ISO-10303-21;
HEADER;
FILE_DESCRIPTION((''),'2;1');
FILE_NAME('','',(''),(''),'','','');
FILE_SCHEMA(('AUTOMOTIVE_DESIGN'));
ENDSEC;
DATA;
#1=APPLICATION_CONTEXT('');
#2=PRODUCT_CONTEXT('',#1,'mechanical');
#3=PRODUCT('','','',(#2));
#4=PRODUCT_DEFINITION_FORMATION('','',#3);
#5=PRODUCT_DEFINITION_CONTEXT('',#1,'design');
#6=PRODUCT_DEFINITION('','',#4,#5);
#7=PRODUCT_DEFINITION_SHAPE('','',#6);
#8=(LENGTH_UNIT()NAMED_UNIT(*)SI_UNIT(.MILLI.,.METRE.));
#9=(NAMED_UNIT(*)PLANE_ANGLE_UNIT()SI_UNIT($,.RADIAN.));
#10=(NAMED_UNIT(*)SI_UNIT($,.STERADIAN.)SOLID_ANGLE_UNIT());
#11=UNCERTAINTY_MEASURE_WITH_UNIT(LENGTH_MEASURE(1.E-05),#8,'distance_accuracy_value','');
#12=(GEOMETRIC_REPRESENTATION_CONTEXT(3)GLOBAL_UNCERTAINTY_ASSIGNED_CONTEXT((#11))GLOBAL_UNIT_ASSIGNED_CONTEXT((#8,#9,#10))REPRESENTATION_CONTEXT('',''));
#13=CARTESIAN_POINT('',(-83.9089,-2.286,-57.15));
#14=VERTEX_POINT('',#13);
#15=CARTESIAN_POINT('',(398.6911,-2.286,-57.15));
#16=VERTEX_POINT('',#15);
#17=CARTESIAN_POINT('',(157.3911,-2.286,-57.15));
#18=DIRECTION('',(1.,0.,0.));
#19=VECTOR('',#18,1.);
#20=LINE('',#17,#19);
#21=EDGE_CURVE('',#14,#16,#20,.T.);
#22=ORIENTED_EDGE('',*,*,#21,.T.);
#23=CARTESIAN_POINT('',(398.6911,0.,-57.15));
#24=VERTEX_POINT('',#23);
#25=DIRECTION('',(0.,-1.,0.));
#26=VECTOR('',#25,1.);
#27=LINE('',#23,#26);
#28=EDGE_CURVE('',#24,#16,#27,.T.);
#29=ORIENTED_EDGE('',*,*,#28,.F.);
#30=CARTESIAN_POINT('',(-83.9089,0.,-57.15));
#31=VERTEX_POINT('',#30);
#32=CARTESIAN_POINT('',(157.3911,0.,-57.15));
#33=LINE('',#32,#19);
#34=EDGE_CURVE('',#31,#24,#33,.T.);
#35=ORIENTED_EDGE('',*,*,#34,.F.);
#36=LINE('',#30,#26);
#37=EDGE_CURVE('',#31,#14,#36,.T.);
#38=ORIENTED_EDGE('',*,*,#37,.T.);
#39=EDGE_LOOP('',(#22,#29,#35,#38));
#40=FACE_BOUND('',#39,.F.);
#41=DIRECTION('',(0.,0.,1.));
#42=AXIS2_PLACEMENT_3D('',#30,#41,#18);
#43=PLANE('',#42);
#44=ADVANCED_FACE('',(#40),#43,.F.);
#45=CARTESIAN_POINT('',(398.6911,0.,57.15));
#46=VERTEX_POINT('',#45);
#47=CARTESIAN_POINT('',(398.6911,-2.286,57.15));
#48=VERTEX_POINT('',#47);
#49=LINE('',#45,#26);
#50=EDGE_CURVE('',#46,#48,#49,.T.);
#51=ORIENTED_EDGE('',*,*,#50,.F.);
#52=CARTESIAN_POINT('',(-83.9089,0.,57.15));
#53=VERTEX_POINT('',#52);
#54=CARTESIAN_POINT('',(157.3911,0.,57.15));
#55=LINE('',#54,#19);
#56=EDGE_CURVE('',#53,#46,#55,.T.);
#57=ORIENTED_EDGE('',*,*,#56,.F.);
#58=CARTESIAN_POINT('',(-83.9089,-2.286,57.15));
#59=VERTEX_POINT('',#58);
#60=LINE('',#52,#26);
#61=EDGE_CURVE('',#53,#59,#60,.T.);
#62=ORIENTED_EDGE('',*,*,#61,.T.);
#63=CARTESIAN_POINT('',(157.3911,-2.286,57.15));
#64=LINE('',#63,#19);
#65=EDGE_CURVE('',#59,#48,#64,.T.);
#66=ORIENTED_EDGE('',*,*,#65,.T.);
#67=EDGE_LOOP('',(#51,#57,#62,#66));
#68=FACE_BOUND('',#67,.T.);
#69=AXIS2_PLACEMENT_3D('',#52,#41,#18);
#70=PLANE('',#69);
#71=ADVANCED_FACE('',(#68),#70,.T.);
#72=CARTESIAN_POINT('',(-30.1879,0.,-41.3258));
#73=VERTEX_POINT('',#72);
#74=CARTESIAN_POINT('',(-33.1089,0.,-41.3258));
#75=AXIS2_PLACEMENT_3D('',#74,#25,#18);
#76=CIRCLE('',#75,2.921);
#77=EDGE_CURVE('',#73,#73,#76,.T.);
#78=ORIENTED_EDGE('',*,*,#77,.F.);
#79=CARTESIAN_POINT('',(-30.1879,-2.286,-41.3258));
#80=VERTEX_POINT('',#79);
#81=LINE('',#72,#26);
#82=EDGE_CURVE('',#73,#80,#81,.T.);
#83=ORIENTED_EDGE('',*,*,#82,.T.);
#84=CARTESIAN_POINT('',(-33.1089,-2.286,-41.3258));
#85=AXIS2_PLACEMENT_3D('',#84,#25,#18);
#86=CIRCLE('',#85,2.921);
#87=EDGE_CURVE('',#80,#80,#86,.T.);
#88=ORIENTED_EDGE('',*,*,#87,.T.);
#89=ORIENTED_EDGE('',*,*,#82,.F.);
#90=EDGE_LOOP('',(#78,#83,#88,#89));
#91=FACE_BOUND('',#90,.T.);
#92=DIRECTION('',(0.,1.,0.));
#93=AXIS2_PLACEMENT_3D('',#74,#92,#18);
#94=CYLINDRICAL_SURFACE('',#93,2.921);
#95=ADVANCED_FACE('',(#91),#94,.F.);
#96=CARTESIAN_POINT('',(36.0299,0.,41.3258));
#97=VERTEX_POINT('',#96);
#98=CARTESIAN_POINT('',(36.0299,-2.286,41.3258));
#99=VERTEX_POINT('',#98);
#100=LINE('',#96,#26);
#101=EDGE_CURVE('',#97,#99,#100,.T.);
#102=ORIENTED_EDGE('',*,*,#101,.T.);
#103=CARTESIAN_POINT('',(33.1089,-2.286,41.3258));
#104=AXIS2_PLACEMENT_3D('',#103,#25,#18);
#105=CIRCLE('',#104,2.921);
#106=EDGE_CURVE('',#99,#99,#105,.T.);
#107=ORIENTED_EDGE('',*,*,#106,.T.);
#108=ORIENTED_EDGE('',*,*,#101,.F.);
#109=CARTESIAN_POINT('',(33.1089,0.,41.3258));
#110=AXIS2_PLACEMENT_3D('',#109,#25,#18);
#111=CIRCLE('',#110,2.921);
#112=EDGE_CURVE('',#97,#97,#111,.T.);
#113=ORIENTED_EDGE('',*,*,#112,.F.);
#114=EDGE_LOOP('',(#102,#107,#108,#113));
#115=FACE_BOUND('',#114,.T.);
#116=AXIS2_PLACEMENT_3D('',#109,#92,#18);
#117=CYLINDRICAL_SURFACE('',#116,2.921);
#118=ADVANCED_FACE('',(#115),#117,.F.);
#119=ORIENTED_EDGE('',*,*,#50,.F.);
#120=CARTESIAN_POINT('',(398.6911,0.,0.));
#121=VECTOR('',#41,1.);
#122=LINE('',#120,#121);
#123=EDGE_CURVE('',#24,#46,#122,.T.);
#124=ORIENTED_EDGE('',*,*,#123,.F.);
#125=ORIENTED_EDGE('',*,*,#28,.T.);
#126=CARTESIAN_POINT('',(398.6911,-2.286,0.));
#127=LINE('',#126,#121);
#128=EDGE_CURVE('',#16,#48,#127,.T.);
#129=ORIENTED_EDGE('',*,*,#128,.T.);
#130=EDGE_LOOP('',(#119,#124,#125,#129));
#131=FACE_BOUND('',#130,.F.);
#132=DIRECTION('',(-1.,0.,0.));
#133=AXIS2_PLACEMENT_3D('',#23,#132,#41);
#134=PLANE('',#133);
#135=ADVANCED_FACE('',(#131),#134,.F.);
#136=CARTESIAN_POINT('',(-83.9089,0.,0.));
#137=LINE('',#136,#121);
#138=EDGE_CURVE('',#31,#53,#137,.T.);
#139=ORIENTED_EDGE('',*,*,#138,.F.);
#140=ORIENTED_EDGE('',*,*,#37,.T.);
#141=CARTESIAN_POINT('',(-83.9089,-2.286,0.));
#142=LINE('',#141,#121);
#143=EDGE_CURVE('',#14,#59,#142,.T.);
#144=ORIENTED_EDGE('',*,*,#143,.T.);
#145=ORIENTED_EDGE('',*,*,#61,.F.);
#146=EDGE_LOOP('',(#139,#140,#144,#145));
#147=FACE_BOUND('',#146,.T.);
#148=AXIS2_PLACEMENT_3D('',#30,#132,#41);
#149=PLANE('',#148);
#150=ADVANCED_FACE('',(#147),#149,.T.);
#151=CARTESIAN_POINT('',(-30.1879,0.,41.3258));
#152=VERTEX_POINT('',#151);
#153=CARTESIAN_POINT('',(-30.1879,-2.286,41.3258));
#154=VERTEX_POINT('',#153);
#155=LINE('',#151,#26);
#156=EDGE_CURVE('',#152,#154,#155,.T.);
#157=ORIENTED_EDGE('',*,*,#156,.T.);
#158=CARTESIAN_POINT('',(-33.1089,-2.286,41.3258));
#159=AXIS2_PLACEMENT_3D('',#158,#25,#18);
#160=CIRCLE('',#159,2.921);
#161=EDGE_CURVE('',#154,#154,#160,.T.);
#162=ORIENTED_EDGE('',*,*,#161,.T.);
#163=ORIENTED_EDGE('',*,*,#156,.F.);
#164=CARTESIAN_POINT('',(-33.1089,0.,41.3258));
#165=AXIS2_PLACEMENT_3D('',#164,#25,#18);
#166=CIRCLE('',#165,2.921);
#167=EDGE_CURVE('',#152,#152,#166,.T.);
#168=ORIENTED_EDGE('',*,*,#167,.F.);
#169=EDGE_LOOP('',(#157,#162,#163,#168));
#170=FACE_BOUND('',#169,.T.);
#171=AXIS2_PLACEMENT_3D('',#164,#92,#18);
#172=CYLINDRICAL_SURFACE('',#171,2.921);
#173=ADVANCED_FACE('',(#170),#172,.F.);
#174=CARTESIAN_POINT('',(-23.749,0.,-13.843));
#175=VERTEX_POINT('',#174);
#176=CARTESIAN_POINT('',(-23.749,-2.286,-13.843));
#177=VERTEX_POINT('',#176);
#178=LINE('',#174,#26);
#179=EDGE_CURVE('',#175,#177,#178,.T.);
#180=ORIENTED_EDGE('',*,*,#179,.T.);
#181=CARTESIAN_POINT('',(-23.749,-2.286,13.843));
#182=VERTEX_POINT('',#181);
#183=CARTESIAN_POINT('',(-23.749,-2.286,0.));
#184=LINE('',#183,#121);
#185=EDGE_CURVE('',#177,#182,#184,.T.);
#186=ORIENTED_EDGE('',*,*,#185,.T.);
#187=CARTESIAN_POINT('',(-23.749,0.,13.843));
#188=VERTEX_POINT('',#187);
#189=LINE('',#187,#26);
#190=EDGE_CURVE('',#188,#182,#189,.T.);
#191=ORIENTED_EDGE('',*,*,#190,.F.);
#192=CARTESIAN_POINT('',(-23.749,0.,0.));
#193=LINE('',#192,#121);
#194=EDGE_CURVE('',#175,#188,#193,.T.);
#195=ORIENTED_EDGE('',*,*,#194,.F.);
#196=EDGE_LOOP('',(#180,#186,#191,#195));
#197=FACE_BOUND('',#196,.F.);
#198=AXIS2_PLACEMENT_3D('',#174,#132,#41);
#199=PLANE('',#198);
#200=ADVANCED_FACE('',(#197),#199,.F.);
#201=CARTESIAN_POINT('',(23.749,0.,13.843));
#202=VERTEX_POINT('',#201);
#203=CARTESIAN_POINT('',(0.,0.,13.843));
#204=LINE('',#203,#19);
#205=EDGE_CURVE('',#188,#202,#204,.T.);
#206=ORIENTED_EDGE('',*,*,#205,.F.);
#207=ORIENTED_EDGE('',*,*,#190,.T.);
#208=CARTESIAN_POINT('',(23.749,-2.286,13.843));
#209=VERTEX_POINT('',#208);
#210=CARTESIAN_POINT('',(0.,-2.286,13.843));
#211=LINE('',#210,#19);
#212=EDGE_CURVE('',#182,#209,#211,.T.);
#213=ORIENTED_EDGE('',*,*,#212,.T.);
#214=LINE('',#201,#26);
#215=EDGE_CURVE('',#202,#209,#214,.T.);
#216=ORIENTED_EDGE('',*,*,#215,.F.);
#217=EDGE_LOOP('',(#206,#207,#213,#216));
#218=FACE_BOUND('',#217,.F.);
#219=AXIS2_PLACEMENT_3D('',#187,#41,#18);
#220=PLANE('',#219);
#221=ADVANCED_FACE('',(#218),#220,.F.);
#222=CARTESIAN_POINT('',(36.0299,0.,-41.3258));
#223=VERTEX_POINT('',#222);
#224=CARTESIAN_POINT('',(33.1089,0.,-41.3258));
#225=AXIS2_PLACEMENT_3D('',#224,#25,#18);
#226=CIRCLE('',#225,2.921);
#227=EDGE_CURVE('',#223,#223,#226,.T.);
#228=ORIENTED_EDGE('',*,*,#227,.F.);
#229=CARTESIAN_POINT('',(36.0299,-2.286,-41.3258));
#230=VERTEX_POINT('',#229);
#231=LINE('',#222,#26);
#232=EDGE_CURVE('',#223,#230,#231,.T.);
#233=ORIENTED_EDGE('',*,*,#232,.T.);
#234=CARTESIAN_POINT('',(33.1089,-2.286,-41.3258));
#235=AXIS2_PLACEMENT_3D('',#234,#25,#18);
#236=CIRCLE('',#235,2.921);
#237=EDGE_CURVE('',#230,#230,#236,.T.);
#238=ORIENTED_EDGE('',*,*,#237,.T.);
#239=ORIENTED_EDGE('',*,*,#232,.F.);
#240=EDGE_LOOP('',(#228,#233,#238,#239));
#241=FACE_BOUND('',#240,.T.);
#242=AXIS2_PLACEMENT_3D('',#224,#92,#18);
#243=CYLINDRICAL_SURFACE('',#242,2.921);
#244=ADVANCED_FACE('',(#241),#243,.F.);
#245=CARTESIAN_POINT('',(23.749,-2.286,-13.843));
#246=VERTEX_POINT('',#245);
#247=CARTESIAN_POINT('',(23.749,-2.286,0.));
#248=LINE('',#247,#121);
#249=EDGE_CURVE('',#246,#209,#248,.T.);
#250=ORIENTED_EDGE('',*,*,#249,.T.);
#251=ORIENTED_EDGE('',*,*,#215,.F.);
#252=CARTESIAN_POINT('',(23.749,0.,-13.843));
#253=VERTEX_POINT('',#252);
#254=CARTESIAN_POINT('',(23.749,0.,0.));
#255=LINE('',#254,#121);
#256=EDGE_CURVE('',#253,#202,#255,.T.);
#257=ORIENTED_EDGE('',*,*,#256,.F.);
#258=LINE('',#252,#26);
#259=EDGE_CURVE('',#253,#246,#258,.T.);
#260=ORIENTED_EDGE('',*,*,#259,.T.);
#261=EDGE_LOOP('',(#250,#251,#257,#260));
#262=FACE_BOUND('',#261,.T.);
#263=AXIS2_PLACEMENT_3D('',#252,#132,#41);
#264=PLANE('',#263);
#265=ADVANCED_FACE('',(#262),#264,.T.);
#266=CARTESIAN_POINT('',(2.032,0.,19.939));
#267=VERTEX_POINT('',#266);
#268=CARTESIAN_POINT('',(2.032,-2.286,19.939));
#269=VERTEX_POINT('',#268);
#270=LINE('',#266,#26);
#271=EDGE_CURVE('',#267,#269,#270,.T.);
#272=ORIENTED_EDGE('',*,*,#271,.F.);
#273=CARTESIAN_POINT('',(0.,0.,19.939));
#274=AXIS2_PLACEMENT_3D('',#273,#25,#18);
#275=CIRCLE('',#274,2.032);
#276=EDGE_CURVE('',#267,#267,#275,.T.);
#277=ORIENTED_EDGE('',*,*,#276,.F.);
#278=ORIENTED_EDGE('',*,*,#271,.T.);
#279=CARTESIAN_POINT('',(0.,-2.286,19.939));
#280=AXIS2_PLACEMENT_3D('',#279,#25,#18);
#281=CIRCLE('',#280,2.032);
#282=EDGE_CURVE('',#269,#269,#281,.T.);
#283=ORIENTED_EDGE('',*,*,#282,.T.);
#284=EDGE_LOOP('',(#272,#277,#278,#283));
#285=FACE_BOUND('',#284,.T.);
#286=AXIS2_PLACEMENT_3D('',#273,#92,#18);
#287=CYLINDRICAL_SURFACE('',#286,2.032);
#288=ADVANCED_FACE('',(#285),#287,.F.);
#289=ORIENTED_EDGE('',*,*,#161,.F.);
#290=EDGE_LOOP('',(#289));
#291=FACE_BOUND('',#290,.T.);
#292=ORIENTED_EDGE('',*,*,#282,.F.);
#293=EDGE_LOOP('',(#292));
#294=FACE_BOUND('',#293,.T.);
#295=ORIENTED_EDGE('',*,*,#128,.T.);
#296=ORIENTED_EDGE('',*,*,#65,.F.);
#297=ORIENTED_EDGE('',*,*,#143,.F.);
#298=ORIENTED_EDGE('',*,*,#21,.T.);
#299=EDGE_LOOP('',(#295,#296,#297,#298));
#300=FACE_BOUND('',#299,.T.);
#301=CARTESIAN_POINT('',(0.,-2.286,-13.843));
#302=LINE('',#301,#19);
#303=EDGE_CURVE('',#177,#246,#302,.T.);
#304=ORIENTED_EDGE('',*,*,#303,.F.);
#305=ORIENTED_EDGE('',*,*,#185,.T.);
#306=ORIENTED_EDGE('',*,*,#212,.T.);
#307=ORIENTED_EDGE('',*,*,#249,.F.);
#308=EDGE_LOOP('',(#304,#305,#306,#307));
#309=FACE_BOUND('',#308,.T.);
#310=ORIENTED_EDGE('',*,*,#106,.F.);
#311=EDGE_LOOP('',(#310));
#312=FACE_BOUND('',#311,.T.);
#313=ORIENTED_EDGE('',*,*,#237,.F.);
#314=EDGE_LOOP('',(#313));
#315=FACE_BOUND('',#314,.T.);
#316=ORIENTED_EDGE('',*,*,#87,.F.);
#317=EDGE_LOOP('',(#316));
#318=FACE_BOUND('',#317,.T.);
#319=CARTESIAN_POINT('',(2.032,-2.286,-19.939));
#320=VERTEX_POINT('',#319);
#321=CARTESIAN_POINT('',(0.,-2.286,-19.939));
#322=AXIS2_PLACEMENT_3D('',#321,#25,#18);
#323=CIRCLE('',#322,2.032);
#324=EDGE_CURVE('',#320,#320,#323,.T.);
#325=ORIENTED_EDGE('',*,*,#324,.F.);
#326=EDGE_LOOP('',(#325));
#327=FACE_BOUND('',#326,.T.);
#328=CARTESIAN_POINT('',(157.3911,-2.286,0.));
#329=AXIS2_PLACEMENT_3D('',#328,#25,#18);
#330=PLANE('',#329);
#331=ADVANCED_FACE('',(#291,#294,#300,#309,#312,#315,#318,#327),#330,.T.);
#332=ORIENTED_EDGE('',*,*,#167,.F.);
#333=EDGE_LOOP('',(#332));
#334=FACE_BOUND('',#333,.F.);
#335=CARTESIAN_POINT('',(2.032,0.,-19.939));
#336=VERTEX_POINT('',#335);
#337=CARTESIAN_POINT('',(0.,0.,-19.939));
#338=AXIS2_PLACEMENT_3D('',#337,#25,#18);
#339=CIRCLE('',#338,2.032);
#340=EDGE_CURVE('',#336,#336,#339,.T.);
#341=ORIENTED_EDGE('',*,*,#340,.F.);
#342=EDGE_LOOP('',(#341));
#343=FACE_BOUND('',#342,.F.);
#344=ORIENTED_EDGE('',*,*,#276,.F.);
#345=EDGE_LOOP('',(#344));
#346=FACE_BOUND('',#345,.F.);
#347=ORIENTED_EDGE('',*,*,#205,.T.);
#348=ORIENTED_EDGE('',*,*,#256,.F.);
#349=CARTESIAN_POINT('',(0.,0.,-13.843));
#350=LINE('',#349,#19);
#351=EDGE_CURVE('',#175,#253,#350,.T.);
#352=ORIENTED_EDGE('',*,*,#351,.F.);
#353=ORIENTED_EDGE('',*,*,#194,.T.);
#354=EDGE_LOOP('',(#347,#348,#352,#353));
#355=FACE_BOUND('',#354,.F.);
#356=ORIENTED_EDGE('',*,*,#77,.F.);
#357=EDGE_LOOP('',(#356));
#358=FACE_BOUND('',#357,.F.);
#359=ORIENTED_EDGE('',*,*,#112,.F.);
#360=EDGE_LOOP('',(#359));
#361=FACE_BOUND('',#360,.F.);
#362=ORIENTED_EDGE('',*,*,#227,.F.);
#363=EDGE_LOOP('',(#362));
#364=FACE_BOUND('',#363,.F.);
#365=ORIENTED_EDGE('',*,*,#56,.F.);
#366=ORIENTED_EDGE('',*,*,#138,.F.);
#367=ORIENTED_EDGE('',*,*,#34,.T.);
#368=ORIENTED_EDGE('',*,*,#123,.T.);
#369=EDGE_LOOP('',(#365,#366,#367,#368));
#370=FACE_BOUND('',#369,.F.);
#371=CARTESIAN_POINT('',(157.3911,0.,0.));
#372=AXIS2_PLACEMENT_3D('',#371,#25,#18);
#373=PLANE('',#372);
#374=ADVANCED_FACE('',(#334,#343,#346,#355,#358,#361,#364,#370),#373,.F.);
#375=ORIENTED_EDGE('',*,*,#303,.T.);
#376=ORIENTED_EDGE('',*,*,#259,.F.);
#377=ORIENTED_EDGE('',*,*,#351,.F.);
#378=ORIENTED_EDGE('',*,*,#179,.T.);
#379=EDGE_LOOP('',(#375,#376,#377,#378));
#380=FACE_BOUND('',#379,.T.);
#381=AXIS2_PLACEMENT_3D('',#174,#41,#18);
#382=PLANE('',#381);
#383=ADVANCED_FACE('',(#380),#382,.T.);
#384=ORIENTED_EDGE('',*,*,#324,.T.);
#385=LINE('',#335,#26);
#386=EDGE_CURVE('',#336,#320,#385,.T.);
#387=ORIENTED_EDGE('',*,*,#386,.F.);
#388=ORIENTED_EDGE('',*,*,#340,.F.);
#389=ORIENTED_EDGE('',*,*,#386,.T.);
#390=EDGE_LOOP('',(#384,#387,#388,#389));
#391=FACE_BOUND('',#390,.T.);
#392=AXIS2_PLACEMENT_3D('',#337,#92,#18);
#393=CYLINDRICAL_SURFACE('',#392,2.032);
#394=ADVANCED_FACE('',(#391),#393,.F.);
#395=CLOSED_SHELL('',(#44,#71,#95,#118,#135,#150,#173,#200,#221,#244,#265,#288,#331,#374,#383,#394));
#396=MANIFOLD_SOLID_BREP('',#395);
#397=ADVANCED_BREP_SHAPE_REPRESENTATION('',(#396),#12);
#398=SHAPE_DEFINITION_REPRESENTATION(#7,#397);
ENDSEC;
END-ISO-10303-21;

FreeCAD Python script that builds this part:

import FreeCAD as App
import Part
import Sketcher
from FreeCAD import Vector
Q = App.Units.Quantity

doc = App.newDocument("Part")
body = doc.addObject("PartDesign::Body", "Body")

# Sketch on XZ plane
sketch1 = doc.addObject("Sketcher::SketchObject", "Sketch")
body.addObject(sketch1)
sketch1.AttachmentSupport = (doc.XZ_Plane, [""])
sketch1.MapMode = "FlatFace"
sketch1.addGeometry(Part.LineSegment(Vector(-83.9089, 57.15, 0), Vector(-83.9089, -57.15, 0)), False)
sketch1.addGeometry(Part.LineSegment(Vector(-83.9089, -57.15, 0), Vector(398.6911, -57.15, 0)), False)
sketch1.addGeometry(Part.LineSegment(Vector(398.6911, -57.15, 0), Vector(398.6911, 57.15, 0)), False)
sketch1.addGeometry(Part.LineSegment(Vector(398.6911, 57.15, 0), Vector(-83.9089, 57.15, 0)), False)
sketch1.addGeometry(Part.Circle(Vector(-33.1089, -41.3258, 0), Vector(0, 0, 1), 2.921), False)
sketch1.addGeometry(Part.Circle(Vector(0, -19.939, 0), Vector(0, 0, 1), 2.032), False)
sketch1.addGeometry(Part.Circle(Vector(33.1089, -41.3258, 0), Vector(0, 0, 1), 2.921), False)
sketch1.addGeometry(Part.LineSegment(Vector(23.749, -13.843, 0), Vector(-23.749, -13.843, 0)), False)
sketch1.addGeometry(Part.LineSegment(Vector(-23.749, -13.843, 0), Vector(-23.749, 13.843, 0)), False)
sketch1.addGeometry(Part.LineSegment(Vector(-23.749, 13.843, 0), Vector(23.749, 13.843, 0)), False)
sketch1.addGeometry(Part.LineSegment(Vector(23.749, 13.843, 0), Vector(23.749, -13.843, 0)), False)
sketch1.addGeometry(Part.Circle(Vector(0, 19.939, 0), Vector(0, 0, 1), 2.032), False)
sketch1.addGeometry(Part.Circle(Vector(-33.1089, 41.3258, 0), Vector(0, 0, 1), 2.921), False)
sketch1.addGeometry(Part.Circle(Vector(33.1089, 41.3258, 0), Vector(0, 0, 1), 2.921), False)
sketch1.addConstraint(Sketcher.Constraint("Coincident", 0, 2, 1, 1))
sketch1.addConstraint(Sketcher.Constraint("Coincident", 1, 2, 2, 1))
sketch1.addConstraint(Sketcher.Constraint("Coincident", 2, 2, 3, 1))
sketch1.addConstraint(Sketcher.Constraint("Coincident", 3, 2, 0, 1))
sketch1.addConstraint(Sketcher.Constraint("Coincident", 7, 2, 8, 1))
sketch1.addConstraint(Sketcher.Constraint("Coincident", 8, 2, 9, 1))
sketch1.addConstraint(Sketcher.Constraint("Coincident", 9, 2, 10, 1))
sketch1.addConstraint(Sketcher.Constraint("Coincident", 10, 2, 7, 1))
sketch1.addConstraint(Sketcher.Constraint("Vertical", 0))
sketch1.addConstraint(Sketcher.Constraint("Horizontal", 1))
sketch1.addConstraint(Sketcher.Constraint("Vertical", 2))
sketch1.addConstraint(Sketcher.Constraint("Horizontal", 3))
sketch1.addConstraint(Sketcher.Constraint("Horizontal", 7))
sketch1.addConstraint(Sketcher.Constraint("Vertical", 8))
sketch1.addConstraint(Sketcher.Constraint("Horizontal", 9))
sketch1.addConstraint(Sketcher.Constraint("Vertical", 10))
sketch1.addConstraint(Sketcher.Constraint("Equal", 4, 6))
sketch1.addConstraint(Sketcher.Constraint("Equal", 5, 11))
sketch1.addConstraint(Sketcher.Constraint("Equal", 6, 12))
sketch1.addConstraint(Sketcher.Constraint("Equal", 12, 13))
sketch1.addConstraint(Sketcher.Constraint("Symmetric", 5, 3, 11, 3, -1, 1))
sketch1.addConstraint(Sketcher.Constraint("Symmetric", 6, 3, 12, 3, -1, 1))
sketch1.addConstraint(Sketcher.Constraint("Symmetric", 4, 3, 13, 3, -1, 1))
sketch1.addConstraint(Sketcher.Constraint("Symmetric", 7, 2, 9, 2, -1, 1))
sketch1.addConstraint(Sketcher.Constraint("Symmetric", 4, 3, 6, 3, -2))
sketch1.addConstraint(Sketcher.Constraint("PointOnObject", 5, 3, -2))
sketch1.addConstraint(Sketcher.Constraint("Diameter", 4, Q("0.23 in")))
sketch1.addConstraint(Sketcher.Constraint("Diameter", 5, Q("0.16 in")))
sketch1.addConstraint(Sketcher.Constraint("DistanceX", 1, 1, 1, 2, Q("19 in")))
sketch1.addConstraint(Sketcher.Constraint("DistanceY", 0, 2, 0, 1, Q("4.5 in")))
sketch1.addConstraint(Sketcher.Constraint("DistanceX", 0, 2, 4, 3, Q("2 in")))
sketch1.addConstraint(Sketcher.Constraint("DistanceX", 7, 2, 7, 1, Q("1.87 in")))
sketch1.addConstraint(Sketcher.Constraint("DistanceY", 8, 1, 8, 2, Q("1.09 in")))
sketch1.addConstraint(Sketcher.Constraint("DistanceY", 0, 2, -1, 1, Q("2.25 in")))
sketch1.addConstraint(Sketcher.Constraint("DistanceY", 5, 3, 11, 3, Q("1.57 in")))
sketch1.addConstraint(Sketcher.Constraint("DistanceY", 4, 3, -1, 1, Q("1.627 in")))
sketch1.addConstraint(Sketcher.Constraint("DistanceX", 4, 3, 6, 3, Q("2.607 in")))
pad1 = doc.addObject("PartDesign::Pad", "Pad")
body.addObject(pad1)
pad1.Profile = sketch1
pad1.Length = Q("0.09 in")

doc.recompute()
